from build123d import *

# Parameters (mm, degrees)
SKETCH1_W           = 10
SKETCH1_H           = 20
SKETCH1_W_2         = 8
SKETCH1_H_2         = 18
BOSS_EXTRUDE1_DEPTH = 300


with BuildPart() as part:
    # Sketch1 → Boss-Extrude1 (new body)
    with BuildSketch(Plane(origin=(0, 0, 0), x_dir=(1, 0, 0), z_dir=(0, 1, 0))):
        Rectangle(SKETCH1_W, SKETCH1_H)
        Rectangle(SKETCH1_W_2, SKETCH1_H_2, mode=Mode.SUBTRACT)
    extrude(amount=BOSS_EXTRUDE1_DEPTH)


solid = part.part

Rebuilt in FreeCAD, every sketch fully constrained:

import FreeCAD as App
import Part
import Sketcher

doc = App.newDocument("Part")
body = doc.addObject("PartDesign::Body", "Body")

sketch1 = body.newObject("Sketcher::SketchObject", "Sketch")
sketch1.AttachmentSupport = (doc.getObject("XZ_Plane"), [""])
sketch1.MapMode = "FlatFace"
sketch1.addGeometry(Part.LineSegment(App.Vector(-5, -10, 0), App.Vector(-5, 10, 0)), False)
sketch1.addGeometry(Part.LineSegment(App.Vector(-5, 10, 0), App.Vector(5, 10, 0)), False)
sketch1.addGeometry(Part.LineSegment(App.Vector(5, 10, 0), App.Vector(5, -10, 0)), False)
sketch1.addGeometry(Part.LineSegment(App.Vector(5, -10, 0), App.Vector(-5, -10, 0)), False)
sketch1.addGeometry(Part.LineSegment(App.Vector(4, 9, 0), App.Vector(-4, 9, 0)), False)
sketch1.addGeometry(Part.LineSegment(App.Vector(-4, 9, 0), App.Vector(-4, -9, 0)), False)
sketch1.addGeometry(Part.LineSegment(App.Vector(-4, -9, 0), App.Vector(4, -9, 0)), False)
sketch1.addGeometry(Part.LineSegment(App.Vector(4, -9, 0), App.Vector(4, 9, 0)), False)
sketch1.addConstraint(Sketcher.Constraint("Coincident", 0, 2, 1, 1))
sketch1.addConstraint(Sketcher.Constraint("Coincident", 1, 2, 2, 1))
sketch1.addConstraint(Sketcher.Constraint("Coincident", 2, 2, 3, 1))
sketch1.addConstraint(Sketcher.Constraint("Coincident", 3, 2, 0, 1))
sketch1.addConstraint(Sketcher.Constraint("Coincident", 4, 2, 5, 1))
sketch1.addConstraint(Sketcher.Constraint("Coincident", 5, 2, 6, 1))
sketch1.addConstraint(Sketcher.Constraint("Coincident", 6, 2, 7, 1))
sketch1.addConstraint(Sketcher.Constraint("Coincident", 7, 2, 4, 1))
sketch1.addConstraint(Sketcher.Constraint("Vertical", 0))
sketch1.addConstraint(Sketcher.Constraint("Horizontal", 1))
sketch1.addConstraint(Sketcher.Constraint("Vertical", 2))
sketch1.addConstraint(Sketcher.Constraint("Horizontal", 3))
sketch1.addConstraint(Sketcher.Constraint("Horizontal", 4))
sketch1.addConstraint(Sketcher.Constraint("Vertical", 5))
sketch1.addConstraint(Sketcher.Constraint("Horizontal", 6))
sketch1.addConstraint(Sketcher.Constraint("Vertical", 7))
sketch1.addConstraint(Sketcher.Constraint("Symmetric", 0, 2, 2, 2, -1, 1))
sketch1.addConstraint(Sketcher.Constraint("Symmetric", 4, 2, 6, 2, -1, 1))
sketch1.addConstraint(Sketcher.Constraint("DistanceX", 1, 1, 1, 2, 10.0))
sketch1.addConstraint(Sketcher.Constraint("DistanceX", 4, 2, 4, 1, 8.0))
sketch1.addConstraint(Sketcher.Constraint("DistanceY", 0, 1, 0, 2, 20.0))
sketch1.addConstraint(Sketcher.Constraint("DistanceY", 5, 2, 5, 1, 18.0))
pad1 = body.newObject("PartDesign::Pad", "Pad")
pad1.Profile = sketch1
pad1.Length = 300
pad1.Reversed = True

doc.recompute()
